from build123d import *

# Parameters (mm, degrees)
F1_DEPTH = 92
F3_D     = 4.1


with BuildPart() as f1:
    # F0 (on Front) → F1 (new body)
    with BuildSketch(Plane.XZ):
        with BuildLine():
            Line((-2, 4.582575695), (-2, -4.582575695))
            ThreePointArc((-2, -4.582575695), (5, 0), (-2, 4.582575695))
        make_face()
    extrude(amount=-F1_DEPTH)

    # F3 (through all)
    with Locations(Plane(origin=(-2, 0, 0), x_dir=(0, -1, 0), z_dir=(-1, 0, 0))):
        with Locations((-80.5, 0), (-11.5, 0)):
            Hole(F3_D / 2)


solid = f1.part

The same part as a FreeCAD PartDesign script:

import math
import FreeCAD as App
import Part
import Sketcher
from FreeCAD import Vector

doc = App.newDocument("Part")
params = doc.addObject("Spreadsheet::Sheet", "Params")
for row, (alias, value) in enumerate([
    ("sketch1_radius", "5 mm"),
    ("pad1_length", "92 mm"),
    ("sketch2_diameter", "4.1 mm"),
    ("hole_diameter", "4.1 mm"),
], start=1):
    params.set(f"A{row}", alias)
    params.set(f"B{row}", "=" + value)
    params.setAlias(f"B{row}", alias)

body = doc.addObject("PartDesign::Body", "Body")

# Sketch on XZ plane
sketch1 = body.newObject("Sketcher::SketchObject", "Sketch")
sketch1.AttachmentSupport = (doc.getObject("XZ_Plane"), [""])
sketch1.MapMode = "FlatFace"
sketch1.addGeometry([
    Part.LineSegment(Vector(-2, 4.582576, 0), Vector(-2, -4.582576, 0)),
    Part.ArcOfCircle(Part.Circle(Vector(0, 0, 0), Vector(0, 0, 1), 5), math.radians(-113.578178), math.radians(113.578178)),
], False)
sketch1.addConstraint([
    Sketcher.Constraint("Coincident", 0, 1, 1, 2),
    Sketcher.Constraint("Coincident", 1, 1, 0, 2),
    Sketcher.Constraint("Vertical", 0),
    Sketcher.Constraint("Coincident", 1, 3, -1, 1),
    Sketcher.Constraint("Radius", 1, 5.0),
    Sketcher.Constraint("DistanceX", 0, 1, -1, 1, 2.0),
])
sketch1.setExpression("Constraints[4]", "Params.sketch1_radius")
pad1 = body.newObject("PartDesign::Pad", "Pad")
pad1.Profile = sketch1
pad1.setExpression("Length", "Params.pad1_length")
pad1.Reversed = True

# Sketch on YZ plane
sketch2 = body.newObject("Sketcher::SketchObject", "Sketch001")
sketch2.AttachmentSupport = (doc.getObject("YZ_Plane"), [""])
sketch2.MapMode = "FlatFace"
sketch2.AttachmentOffset = App.Placement(Vector(0, 0, -2), App.Rotation())
sketch2.addGeometry([
    Part.Circle(Vector(80.5, 0, 0), Vector(0, 0, 1), 2.05),
    Part.Circle(Vector(11.5, 0, 0), Vector(0, 0, 1), 2.05),
], False)
sketch2.addConstraint([
    Sketcher.Constraint("Equal", 0, 1),
    Sketcher.Constraint("PointOnObject", 0, 3, -1),
    Sketcher.Constraint("PointOnObject", 1, 3, -1),
    Sketcher.Constraint("Diameter", 0, 4.1),
    Sketcher.Constraint("DistanceX", 1, 3, 0, 3, 69.0),
    Sketcher.Constraint("DistanceX", -1, 1, 0, 3, 80.5),
])
sketch2.setExpression("Constraints[3]", "Params.sketch2_diameter")
doc.recompute()
hole = body.newObject("PartDesign::Hole", "Hole")
hole.Profile = sketch2
hole.ThreadType = "None"
hole.setExpression("Diameter", "Params.hole_diameter")
hole.DepthType = "ThroughAll"
hole.Reversed = True

doc.recompute()
